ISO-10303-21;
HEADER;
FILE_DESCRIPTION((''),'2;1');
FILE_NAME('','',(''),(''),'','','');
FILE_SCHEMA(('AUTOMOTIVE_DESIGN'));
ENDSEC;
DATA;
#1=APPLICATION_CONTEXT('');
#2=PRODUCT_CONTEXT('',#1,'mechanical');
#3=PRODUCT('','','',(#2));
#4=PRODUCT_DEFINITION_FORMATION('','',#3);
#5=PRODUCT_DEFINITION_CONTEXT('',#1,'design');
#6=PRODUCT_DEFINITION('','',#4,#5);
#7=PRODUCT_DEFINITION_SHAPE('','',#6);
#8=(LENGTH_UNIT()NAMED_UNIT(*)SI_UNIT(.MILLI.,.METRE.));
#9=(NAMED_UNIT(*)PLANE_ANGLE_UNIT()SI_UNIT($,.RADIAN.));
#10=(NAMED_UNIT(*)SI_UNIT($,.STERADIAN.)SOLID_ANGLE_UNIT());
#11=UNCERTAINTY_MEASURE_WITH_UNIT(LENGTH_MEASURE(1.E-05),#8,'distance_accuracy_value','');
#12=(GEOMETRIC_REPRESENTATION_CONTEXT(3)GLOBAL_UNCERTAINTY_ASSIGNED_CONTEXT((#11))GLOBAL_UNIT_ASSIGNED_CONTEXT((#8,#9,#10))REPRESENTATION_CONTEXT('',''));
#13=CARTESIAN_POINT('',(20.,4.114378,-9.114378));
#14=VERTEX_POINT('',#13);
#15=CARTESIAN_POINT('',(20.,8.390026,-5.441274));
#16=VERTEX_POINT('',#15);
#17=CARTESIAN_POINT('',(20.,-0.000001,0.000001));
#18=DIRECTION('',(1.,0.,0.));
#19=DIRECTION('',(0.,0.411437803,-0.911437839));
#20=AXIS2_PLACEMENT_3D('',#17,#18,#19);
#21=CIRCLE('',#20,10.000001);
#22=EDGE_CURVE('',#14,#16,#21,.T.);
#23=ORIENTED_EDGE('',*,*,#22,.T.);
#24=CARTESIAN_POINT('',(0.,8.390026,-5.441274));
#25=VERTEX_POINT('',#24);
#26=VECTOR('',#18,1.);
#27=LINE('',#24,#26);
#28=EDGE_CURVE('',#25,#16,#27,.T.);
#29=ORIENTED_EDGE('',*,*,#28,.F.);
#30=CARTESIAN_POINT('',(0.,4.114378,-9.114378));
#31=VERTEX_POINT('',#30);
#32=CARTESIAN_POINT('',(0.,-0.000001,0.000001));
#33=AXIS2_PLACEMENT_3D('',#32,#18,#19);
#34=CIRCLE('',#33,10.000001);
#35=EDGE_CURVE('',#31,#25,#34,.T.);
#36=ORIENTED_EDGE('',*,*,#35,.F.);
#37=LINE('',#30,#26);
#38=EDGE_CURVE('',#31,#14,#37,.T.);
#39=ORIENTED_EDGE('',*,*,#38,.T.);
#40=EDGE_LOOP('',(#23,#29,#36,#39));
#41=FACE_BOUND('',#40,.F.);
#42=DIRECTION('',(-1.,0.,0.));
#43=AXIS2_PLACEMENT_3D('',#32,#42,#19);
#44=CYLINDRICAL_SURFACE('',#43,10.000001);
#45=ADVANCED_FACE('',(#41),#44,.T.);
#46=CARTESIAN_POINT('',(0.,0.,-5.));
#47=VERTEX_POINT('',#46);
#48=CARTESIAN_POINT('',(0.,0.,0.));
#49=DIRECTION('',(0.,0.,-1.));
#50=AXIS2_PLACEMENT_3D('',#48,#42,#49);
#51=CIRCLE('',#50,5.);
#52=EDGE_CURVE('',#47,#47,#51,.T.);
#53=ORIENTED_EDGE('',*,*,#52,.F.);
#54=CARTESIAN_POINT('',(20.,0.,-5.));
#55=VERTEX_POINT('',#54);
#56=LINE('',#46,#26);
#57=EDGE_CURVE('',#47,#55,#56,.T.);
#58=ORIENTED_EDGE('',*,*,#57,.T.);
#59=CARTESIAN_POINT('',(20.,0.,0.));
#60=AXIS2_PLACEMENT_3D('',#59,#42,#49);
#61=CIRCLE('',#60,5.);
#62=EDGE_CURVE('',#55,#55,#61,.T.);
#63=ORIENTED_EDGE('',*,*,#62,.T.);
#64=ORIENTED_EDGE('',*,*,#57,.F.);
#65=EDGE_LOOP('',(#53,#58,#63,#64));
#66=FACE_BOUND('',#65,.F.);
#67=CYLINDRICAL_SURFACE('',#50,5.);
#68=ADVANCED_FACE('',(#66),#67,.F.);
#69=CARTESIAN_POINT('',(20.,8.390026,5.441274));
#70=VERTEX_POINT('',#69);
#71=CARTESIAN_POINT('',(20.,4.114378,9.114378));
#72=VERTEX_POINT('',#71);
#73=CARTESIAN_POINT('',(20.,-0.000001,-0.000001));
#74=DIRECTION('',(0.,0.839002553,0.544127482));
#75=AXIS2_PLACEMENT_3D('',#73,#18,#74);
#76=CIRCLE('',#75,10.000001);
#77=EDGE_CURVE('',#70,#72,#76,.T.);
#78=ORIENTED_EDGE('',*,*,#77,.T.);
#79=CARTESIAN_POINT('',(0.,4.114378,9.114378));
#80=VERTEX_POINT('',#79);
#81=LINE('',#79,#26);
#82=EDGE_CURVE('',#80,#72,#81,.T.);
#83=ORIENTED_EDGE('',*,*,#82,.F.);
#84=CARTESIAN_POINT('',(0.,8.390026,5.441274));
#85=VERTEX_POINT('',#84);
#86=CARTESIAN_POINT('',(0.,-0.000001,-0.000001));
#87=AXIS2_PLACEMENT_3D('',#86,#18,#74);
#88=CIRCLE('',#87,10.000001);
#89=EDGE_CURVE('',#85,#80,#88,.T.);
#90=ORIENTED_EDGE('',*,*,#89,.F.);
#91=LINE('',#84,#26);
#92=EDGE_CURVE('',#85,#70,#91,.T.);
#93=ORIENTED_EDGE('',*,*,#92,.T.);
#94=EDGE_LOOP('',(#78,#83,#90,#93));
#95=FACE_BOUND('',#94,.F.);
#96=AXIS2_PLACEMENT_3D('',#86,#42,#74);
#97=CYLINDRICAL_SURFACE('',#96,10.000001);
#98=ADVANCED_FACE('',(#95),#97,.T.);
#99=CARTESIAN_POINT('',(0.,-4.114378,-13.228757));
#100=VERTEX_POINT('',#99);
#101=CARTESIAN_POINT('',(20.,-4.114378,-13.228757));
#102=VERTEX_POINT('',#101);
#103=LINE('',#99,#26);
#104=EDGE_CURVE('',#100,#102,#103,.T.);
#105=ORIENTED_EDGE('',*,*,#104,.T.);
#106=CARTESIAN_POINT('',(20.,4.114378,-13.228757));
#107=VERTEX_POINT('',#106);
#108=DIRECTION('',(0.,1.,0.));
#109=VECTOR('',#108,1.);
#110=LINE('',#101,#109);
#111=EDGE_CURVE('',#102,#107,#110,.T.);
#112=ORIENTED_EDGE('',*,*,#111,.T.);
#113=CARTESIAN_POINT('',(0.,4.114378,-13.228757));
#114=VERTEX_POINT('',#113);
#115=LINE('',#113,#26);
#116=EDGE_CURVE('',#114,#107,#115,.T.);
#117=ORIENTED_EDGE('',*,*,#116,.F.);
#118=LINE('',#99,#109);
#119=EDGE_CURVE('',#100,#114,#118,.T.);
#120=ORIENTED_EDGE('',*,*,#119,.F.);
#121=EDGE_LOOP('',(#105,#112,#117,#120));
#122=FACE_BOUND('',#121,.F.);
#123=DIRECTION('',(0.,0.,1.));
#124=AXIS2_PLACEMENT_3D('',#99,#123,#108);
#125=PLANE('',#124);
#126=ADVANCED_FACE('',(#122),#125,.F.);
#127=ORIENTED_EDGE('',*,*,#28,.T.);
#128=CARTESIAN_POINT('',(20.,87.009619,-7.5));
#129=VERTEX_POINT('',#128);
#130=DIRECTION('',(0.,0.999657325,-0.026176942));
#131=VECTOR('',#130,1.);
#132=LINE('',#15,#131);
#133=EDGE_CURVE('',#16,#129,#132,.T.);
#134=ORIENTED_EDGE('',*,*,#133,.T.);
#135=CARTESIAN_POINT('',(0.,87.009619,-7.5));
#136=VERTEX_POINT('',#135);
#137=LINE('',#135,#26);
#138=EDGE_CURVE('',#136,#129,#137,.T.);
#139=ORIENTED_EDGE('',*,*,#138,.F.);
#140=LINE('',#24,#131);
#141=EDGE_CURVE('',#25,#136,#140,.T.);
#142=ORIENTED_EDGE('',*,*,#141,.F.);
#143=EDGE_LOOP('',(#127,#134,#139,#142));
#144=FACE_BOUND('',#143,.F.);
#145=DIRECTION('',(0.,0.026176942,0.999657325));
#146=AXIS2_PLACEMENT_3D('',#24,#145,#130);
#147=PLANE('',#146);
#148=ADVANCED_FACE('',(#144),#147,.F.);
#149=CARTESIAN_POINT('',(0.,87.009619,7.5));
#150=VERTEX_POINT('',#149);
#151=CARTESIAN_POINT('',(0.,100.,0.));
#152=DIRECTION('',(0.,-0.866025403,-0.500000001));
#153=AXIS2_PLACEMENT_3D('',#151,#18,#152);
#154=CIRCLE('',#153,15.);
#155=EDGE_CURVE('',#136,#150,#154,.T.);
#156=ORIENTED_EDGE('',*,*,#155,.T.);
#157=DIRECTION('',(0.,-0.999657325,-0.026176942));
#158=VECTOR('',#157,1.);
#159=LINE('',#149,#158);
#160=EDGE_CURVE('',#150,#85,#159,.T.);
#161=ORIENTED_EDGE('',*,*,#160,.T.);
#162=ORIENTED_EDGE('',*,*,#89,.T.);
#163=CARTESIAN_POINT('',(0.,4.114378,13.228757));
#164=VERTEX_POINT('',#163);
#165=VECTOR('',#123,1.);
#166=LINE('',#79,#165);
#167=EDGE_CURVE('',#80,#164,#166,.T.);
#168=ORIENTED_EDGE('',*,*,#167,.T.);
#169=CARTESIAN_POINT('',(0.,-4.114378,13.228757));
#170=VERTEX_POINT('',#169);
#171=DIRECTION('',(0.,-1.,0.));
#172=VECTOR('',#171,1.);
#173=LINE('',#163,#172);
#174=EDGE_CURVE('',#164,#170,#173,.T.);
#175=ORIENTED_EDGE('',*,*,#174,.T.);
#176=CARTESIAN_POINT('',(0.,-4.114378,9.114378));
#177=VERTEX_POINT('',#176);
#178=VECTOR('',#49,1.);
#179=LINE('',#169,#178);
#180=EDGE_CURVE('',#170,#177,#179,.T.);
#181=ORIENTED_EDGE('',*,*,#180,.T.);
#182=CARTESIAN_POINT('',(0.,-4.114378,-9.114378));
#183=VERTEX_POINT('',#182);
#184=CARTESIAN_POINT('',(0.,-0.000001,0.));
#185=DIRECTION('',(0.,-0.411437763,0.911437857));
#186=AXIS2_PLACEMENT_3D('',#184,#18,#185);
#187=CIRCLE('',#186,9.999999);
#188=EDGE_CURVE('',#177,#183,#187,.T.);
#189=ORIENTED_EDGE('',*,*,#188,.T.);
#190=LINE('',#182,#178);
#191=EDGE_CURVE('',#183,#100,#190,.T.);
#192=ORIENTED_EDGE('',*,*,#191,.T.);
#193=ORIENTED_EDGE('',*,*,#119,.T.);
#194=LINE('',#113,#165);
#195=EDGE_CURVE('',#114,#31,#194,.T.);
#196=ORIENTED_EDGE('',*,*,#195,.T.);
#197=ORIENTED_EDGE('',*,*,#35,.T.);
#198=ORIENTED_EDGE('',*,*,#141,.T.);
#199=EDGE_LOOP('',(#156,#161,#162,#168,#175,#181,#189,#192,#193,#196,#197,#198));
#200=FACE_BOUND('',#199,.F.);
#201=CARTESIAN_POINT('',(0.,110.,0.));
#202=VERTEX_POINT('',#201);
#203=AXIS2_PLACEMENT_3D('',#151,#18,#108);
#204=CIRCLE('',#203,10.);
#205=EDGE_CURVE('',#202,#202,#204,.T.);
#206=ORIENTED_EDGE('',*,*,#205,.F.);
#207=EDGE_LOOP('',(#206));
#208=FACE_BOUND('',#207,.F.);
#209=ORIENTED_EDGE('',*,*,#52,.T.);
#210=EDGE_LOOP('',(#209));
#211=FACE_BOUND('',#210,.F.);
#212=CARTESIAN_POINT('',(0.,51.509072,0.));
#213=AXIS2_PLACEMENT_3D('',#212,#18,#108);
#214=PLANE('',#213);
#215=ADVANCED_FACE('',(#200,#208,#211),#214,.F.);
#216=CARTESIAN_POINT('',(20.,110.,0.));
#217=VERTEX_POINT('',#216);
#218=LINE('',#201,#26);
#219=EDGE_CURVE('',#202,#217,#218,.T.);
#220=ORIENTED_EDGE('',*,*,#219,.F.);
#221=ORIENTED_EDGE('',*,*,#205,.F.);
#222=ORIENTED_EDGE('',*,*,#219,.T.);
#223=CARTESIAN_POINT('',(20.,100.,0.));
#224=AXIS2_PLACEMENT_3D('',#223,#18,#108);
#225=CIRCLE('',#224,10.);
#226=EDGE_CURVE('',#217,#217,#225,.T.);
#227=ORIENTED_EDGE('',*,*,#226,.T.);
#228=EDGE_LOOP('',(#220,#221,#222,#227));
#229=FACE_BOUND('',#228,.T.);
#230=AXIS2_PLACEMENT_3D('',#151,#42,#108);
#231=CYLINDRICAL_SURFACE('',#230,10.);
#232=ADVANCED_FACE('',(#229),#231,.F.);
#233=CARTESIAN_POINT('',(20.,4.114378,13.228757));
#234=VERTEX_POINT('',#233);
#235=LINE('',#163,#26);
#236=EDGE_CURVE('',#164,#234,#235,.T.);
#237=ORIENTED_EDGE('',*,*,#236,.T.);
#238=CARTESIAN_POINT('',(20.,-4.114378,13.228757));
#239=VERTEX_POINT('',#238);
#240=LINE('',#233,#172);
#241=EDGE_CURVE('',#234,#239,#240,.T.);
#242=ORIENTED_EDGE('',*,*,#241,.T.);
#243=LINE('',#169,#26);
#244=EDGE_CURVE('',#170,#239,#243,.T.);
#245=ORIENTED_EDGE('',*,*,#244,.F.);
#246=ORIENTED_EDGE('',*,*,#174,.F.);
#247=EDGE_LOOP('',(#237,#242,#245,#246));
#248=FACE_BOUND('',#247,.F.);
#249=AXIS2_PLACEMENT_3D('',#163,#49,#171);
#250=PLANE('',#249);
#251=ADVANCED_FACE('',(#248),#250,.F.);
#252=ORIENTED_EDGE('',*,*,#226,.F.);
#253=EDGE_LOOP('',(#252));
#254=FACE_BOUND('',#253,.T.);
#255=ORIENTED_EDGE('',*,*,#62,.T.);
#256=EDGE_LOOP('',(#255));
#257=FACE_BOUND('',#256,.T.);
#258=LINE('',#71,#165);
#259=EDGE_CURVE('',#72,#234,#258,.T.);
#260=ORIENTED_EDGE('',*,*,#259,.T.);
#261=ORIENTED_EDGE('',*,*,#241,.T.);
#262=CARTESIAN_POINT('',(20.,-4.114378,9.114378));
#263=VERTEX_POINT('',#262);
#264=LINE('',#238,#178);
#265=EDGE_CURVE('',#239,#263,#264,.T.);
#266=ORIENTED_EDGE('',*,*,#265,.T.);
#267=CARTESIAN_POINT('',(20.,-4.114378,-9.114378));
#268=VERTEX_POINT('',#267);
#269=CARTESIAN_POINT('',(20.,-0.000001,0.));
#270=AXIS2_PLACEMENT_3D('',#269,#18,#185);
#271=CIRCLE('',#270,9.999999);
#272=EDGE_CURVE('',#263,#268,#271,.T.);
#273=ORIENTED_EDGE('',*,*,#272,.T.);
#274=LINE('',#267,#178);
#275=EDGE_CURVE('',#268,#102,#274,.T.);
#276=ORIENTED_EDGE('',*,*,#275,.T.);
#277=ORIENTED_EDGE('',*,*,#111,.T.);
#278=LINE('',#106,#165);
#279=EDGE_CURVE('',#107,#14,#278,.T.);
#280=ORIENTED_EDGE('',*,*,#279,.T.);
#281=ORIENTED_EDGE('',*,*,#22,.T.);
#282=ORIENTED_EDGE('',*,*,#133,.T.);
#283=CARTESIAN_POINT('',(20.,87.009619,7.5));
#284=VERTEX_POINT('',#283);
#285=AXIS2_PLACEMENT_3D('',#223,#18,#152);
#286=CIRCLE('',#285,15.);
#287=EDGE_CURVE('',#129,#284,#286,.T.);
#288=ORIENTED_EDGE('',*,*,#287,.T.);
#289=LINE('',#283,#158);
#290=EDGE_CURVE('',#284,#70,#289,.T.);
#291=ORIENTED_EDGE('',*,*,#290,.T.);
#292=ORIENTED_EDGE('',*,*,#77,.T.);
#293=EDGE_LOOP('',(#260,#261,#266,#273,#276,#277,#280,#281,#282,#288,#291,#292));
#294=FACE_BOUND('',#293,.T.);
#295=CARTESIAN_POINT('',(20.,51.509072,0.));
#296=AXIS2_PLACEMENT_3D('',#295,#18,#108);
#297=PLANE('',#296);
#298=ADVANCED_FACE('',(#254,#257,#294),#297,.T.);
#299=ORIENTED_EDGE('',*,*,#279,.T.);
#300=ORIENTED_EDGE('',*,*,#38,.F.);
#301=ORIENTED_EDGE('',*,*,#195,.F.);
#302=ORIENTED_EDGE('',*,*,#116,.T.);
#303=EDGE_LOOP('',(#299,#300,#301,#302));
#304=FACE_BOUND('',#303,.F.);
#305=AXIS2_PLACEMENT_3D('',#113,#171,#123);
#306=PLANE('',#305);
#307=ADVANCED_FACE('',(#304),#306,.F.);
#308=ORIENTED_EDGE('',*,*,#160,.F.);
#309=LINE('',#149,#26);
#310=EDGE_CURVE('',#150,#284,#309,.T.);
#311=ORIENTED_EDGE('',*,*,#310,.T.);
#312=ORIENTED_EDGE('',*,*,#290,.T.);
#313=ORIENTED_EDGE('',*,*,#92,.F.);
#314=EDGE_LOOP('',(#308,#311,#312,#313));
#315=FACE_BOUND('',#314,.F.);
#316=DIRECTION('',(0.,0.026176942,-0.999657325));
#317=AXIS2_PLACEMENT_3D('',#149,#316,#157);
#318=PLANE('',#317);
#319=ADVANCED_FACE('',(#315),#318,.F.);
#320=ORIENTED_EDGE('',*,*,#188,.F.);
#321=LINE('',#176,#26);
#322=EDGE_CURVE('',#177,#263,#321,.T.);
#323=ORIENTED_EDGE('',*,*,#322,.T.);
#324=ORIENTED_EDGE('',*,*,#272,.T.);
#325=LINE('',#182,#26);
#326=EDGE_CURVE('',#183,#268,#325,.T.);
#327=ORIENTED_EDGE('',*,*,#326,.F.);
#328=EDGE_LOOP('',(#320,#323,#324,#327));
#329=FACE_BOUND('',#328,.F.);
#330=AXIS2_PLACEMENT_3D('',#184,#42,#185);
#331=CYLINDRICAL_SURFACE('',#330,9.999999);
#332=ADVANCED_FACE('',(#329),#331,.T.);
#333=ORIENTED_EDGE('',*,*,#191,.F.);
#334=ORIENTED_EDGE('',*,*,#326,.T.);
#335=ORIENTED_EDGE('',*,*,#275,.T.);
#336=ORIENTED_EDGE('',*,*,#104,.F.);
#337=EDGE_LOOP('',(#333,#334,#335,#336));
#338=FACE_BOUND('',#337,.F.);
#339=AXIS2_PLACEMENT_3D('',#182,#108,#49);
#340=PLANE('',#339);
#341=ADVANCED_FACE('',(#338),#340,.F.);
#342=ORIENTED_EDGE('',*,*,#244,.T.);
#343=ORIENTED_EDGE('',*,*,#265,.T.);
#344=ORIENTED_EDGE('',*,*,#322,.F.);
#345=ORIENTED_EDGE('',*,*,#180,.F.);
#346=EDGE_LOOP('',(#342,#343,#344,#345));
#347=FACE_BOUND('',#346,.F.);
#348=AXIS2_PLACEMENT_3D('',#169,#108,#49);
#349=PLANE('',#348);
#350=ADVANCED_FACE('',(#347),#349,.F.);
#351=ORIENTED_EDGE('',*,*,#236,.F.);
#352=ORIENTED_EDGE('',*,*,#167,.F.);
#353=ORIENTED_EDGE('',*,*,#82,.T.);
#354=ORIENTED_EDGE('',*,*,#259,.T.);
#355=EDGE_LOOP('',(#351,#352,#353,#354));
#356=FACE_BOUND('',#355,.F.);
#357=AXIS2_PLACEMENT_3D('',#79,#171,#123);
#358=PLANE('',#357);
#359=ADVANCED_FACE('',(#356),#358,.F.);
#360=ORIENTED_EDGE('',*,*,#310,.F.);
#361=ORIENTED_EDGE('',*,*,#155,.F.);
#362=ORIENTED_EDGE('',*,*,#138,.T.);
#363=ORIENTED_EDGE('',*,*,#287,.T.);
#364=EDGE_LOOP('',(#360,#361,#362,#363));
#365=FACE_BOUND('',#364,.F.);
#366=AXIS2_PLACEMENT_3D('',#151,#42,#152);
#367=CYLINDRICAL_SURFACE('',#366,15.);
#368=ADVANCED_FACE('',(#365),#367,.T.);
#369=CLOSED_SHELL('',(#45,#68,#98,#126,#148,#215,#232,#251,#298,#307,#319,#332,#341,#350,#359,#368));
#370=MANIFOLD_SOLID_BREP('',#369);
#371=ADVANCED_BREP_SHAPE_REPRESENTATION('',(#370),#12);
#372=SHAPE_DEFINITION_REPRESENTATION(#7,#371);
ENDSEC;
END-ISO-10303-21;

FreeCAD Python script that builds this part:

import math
import FreeCAD as App
import Part
import Sketcher
Q = App.Units.Quantity

doc = App.newDocument("Part")
body = doc.addObject("PartDesign::Body", "Body")

# Sketch on YZ plane
sketch1 = body.newObject("Sketcher::SketchObject", "Sketch")
sketch1.AttachmentSupport = (doc.getObject("YZ_Plane"), [""])
sketch1.MapMode = "FlatFace"
sketch1.addGeometry(Part.LineSegment(App.Vector(4.1, 13.2, 0), App.Vector(-4.1, 13.2, 0)), False)
sketch1.addGeometry(Part.LineSegment(App.Vector(-4.1, 13.2, 0), App.Vector(-4.1, 9.1, 0)), False)
sketch1.addGeometry(Part.ArcOfCircle(Part.Circle(App.Vector(0, 0, 0), App.Vector(0, 0, 1), 10), math.radians(114), math.radians(246)), False)
sketch1.addGeometry(Part.LineSegment(App.Vector(-4.1, -9.1, 0), App.Vector(-4.1, -13.2, 0)), False)
sketch1.addGeometry(Part.LineSegment(App.Vector(-4.1, -13.2, 0), App.Vector(4.1, -13.2, 0)), False)
sketch1.addGeometry(Part.LineSegment(App.Vector(4.1, -13.2, 0), App.Vector(4.1, -9.1, 0)), False)
sketch1.addGeometry(Part.ArcOfCircle(Part.Circle(App.Vector(0, 0, 0), App.Vector(0, 0, 1), 10), math.radians(-66), math.radians(-33)), False)
sketch1.addGeometry(Part.LineSegment(App.Vector(8.4, -5.4, 0), App.Vector(87, -7.5, 0)), False)
sketch1.addGeometry(Part.ArcOfCircle(Part.Circle(App.Vector(100, 0, 0), App.Vector(0, 0, 1), 15), math.radians(-150), math.radians(150)), False)
sketch1.addGeometry(Part.LineSegment(App.Vector(87, 7.5, 0), App.Vector(8.4, 5.4, 0)), False)
sketch1.addGeometry(Part.ArcOfCircle(Part.Circle(App.Vector(0, 0, 0), App.Vector(0, 0, 1), 10), math.radians(33), math.radians(66)), False)
sketch1.addGeometry(Part.LineSegment(App.Vector(4.1, 9.1, 0), App.Vector(4.1, 13.2, 0)), False)
sketch1.addGeometry(Part.Circle(App.Vector(0, 0, 0), App.Vector(0, 0, 1), 5), False)
sketch1.addGeometry(Part.Circle(App.Vector(100, 0, 0), App.Vector(0, 0, 1), 10), False)
sketch1.addConstraint(Sketcher.Constraint("Coincident", 0, 2, 1, 1))
sketch1.addConstraint(Sketcher.Constraint("Coincident", 1, 2, 2, 1))
sketch1.addConstraint(Sketcher.Constraint("Coincident", 2, 2, 3, 1))
sketch1.addConstraint(Sketcher.Constraint("Coincident", 3, 2, 4, 1))
sketch1.addConstraint(Sketcher.Constraint("Coincident", 4, 2, 5, 1))
sketch1.addConstraint(Sketcher.Constraint("Coincident", 5, 2, 6, 1))
sketch1.addConstraint(Sketcher.Constraint("Coincident", 6, 2, 7, 1))
sketch1.addConstraint(Sketcher.Constraint("Coincident", 7, 2, 8, 1))
sketch1.addConstraint(Sketcher.Constraint("Coincident", 8, 2, 9, 1))
sketch1.addConstraint(Sketcher.Constraint("Coincident", 9, 2, 10, 1))
sketch1.addConstraint(Sketcher.Constraint("Coincident", 10, 2, 11, 1))
sketch1.addConstraint(Sketcher.Constraint("Coincident", 11, 2, 0, 1))
sketch1.addConstraint(Sketcher.Constraint("Horizontal", 0))
sketch1.addConstraint(Sketcher.Constraint("Vertical", 1))
sketch1.addConstraint(Sketcher.Constraint("Vertical", 3))
sketch1.addConstraint(Sketcher.Constraint("Horizontal", 4))
sketch1.addConstraint(Sketcher.Constraint("Vertical", 5))
sketch1.addConstraint(Sketcher.Constraint("Vertical", 11))
sketch1.addConstraint(Sketcher.Constraint("Coincident", 2, 3, -1, 1))
sketch1.addConstraint(Sketcher.Constraint("Coincident", 6, 3, -1, 1))
sketch1.addConstraint(Sketcher.Constraint("Coincident", 10, 3, -1, 1))
sketch1.addConstraint(Sketcher.Constraint("Coincident", 12, 3, -1, 1))
sketch1.addConstraint(Sketcher.Constraint("Coincident", 13, 3, 8, 3))
sketch1.addConstraint(Sketcher.Constraint("Equal", 2, 6))
sketch1.addConstraint(Sketcher.Constraint("Equal", 6, 10))
sketch1.addConstraint(Sketcher.Constraint("Equal", 10, 13))
sketch1.addConstraint(Sketcher.Constraint("Symmetric", 0, 2, 4, 2, -1, 1))
sketch1.addConstraint(Sketcher.Constraint("Symmetric", 7, 2, 8, 2, -1))
sketch1.addConstraint(Sketcher.Constraint("Horizontal", 2, 2, 5, 2))
sketch1.addConstraint(Sketcher.Constraint("Horizontal", 1, 2, 10, 2))
sketch1.addConstraint(Sketcher.Constraint("Vertical", 6, 2, 9, 2))
sketch1.addConstraint(Sketcher.Constraint("Diameter", 12, 10.0))
sketch1.addConstraint(Sketcher.Constraint("Diameter", 13, 20.0))
sketch1.addConstraint(Sketcher.Constraint("Radius", 8, 15.0))
sketch1.addConstraint(Sketcher.Constraint("DistanceX", -1, 1, 8, 3, 100.0))
sketch1.addConstraint(Sketcher.Constraint("Angle", 7, Q("-1.5 deg")))
sketch1.addConstraint(Sketcher.Constraint("DistanceY", 7, 2, 8, 2, 15.0))
sketch1.addConstraint(Sketcher.Constraint("DistanceY", 1, 2, 1, 1, 4.114379))
sketch1.addConstraint(Sketcher.Constraint("DistanceX", 0, 2, 0, 1, 8.228756))
pad1 = body.newObject("PartDesign::Pad", "Pad")
pad1.Profile = sketch1
pad1.Length = 20

doc.recompute()
